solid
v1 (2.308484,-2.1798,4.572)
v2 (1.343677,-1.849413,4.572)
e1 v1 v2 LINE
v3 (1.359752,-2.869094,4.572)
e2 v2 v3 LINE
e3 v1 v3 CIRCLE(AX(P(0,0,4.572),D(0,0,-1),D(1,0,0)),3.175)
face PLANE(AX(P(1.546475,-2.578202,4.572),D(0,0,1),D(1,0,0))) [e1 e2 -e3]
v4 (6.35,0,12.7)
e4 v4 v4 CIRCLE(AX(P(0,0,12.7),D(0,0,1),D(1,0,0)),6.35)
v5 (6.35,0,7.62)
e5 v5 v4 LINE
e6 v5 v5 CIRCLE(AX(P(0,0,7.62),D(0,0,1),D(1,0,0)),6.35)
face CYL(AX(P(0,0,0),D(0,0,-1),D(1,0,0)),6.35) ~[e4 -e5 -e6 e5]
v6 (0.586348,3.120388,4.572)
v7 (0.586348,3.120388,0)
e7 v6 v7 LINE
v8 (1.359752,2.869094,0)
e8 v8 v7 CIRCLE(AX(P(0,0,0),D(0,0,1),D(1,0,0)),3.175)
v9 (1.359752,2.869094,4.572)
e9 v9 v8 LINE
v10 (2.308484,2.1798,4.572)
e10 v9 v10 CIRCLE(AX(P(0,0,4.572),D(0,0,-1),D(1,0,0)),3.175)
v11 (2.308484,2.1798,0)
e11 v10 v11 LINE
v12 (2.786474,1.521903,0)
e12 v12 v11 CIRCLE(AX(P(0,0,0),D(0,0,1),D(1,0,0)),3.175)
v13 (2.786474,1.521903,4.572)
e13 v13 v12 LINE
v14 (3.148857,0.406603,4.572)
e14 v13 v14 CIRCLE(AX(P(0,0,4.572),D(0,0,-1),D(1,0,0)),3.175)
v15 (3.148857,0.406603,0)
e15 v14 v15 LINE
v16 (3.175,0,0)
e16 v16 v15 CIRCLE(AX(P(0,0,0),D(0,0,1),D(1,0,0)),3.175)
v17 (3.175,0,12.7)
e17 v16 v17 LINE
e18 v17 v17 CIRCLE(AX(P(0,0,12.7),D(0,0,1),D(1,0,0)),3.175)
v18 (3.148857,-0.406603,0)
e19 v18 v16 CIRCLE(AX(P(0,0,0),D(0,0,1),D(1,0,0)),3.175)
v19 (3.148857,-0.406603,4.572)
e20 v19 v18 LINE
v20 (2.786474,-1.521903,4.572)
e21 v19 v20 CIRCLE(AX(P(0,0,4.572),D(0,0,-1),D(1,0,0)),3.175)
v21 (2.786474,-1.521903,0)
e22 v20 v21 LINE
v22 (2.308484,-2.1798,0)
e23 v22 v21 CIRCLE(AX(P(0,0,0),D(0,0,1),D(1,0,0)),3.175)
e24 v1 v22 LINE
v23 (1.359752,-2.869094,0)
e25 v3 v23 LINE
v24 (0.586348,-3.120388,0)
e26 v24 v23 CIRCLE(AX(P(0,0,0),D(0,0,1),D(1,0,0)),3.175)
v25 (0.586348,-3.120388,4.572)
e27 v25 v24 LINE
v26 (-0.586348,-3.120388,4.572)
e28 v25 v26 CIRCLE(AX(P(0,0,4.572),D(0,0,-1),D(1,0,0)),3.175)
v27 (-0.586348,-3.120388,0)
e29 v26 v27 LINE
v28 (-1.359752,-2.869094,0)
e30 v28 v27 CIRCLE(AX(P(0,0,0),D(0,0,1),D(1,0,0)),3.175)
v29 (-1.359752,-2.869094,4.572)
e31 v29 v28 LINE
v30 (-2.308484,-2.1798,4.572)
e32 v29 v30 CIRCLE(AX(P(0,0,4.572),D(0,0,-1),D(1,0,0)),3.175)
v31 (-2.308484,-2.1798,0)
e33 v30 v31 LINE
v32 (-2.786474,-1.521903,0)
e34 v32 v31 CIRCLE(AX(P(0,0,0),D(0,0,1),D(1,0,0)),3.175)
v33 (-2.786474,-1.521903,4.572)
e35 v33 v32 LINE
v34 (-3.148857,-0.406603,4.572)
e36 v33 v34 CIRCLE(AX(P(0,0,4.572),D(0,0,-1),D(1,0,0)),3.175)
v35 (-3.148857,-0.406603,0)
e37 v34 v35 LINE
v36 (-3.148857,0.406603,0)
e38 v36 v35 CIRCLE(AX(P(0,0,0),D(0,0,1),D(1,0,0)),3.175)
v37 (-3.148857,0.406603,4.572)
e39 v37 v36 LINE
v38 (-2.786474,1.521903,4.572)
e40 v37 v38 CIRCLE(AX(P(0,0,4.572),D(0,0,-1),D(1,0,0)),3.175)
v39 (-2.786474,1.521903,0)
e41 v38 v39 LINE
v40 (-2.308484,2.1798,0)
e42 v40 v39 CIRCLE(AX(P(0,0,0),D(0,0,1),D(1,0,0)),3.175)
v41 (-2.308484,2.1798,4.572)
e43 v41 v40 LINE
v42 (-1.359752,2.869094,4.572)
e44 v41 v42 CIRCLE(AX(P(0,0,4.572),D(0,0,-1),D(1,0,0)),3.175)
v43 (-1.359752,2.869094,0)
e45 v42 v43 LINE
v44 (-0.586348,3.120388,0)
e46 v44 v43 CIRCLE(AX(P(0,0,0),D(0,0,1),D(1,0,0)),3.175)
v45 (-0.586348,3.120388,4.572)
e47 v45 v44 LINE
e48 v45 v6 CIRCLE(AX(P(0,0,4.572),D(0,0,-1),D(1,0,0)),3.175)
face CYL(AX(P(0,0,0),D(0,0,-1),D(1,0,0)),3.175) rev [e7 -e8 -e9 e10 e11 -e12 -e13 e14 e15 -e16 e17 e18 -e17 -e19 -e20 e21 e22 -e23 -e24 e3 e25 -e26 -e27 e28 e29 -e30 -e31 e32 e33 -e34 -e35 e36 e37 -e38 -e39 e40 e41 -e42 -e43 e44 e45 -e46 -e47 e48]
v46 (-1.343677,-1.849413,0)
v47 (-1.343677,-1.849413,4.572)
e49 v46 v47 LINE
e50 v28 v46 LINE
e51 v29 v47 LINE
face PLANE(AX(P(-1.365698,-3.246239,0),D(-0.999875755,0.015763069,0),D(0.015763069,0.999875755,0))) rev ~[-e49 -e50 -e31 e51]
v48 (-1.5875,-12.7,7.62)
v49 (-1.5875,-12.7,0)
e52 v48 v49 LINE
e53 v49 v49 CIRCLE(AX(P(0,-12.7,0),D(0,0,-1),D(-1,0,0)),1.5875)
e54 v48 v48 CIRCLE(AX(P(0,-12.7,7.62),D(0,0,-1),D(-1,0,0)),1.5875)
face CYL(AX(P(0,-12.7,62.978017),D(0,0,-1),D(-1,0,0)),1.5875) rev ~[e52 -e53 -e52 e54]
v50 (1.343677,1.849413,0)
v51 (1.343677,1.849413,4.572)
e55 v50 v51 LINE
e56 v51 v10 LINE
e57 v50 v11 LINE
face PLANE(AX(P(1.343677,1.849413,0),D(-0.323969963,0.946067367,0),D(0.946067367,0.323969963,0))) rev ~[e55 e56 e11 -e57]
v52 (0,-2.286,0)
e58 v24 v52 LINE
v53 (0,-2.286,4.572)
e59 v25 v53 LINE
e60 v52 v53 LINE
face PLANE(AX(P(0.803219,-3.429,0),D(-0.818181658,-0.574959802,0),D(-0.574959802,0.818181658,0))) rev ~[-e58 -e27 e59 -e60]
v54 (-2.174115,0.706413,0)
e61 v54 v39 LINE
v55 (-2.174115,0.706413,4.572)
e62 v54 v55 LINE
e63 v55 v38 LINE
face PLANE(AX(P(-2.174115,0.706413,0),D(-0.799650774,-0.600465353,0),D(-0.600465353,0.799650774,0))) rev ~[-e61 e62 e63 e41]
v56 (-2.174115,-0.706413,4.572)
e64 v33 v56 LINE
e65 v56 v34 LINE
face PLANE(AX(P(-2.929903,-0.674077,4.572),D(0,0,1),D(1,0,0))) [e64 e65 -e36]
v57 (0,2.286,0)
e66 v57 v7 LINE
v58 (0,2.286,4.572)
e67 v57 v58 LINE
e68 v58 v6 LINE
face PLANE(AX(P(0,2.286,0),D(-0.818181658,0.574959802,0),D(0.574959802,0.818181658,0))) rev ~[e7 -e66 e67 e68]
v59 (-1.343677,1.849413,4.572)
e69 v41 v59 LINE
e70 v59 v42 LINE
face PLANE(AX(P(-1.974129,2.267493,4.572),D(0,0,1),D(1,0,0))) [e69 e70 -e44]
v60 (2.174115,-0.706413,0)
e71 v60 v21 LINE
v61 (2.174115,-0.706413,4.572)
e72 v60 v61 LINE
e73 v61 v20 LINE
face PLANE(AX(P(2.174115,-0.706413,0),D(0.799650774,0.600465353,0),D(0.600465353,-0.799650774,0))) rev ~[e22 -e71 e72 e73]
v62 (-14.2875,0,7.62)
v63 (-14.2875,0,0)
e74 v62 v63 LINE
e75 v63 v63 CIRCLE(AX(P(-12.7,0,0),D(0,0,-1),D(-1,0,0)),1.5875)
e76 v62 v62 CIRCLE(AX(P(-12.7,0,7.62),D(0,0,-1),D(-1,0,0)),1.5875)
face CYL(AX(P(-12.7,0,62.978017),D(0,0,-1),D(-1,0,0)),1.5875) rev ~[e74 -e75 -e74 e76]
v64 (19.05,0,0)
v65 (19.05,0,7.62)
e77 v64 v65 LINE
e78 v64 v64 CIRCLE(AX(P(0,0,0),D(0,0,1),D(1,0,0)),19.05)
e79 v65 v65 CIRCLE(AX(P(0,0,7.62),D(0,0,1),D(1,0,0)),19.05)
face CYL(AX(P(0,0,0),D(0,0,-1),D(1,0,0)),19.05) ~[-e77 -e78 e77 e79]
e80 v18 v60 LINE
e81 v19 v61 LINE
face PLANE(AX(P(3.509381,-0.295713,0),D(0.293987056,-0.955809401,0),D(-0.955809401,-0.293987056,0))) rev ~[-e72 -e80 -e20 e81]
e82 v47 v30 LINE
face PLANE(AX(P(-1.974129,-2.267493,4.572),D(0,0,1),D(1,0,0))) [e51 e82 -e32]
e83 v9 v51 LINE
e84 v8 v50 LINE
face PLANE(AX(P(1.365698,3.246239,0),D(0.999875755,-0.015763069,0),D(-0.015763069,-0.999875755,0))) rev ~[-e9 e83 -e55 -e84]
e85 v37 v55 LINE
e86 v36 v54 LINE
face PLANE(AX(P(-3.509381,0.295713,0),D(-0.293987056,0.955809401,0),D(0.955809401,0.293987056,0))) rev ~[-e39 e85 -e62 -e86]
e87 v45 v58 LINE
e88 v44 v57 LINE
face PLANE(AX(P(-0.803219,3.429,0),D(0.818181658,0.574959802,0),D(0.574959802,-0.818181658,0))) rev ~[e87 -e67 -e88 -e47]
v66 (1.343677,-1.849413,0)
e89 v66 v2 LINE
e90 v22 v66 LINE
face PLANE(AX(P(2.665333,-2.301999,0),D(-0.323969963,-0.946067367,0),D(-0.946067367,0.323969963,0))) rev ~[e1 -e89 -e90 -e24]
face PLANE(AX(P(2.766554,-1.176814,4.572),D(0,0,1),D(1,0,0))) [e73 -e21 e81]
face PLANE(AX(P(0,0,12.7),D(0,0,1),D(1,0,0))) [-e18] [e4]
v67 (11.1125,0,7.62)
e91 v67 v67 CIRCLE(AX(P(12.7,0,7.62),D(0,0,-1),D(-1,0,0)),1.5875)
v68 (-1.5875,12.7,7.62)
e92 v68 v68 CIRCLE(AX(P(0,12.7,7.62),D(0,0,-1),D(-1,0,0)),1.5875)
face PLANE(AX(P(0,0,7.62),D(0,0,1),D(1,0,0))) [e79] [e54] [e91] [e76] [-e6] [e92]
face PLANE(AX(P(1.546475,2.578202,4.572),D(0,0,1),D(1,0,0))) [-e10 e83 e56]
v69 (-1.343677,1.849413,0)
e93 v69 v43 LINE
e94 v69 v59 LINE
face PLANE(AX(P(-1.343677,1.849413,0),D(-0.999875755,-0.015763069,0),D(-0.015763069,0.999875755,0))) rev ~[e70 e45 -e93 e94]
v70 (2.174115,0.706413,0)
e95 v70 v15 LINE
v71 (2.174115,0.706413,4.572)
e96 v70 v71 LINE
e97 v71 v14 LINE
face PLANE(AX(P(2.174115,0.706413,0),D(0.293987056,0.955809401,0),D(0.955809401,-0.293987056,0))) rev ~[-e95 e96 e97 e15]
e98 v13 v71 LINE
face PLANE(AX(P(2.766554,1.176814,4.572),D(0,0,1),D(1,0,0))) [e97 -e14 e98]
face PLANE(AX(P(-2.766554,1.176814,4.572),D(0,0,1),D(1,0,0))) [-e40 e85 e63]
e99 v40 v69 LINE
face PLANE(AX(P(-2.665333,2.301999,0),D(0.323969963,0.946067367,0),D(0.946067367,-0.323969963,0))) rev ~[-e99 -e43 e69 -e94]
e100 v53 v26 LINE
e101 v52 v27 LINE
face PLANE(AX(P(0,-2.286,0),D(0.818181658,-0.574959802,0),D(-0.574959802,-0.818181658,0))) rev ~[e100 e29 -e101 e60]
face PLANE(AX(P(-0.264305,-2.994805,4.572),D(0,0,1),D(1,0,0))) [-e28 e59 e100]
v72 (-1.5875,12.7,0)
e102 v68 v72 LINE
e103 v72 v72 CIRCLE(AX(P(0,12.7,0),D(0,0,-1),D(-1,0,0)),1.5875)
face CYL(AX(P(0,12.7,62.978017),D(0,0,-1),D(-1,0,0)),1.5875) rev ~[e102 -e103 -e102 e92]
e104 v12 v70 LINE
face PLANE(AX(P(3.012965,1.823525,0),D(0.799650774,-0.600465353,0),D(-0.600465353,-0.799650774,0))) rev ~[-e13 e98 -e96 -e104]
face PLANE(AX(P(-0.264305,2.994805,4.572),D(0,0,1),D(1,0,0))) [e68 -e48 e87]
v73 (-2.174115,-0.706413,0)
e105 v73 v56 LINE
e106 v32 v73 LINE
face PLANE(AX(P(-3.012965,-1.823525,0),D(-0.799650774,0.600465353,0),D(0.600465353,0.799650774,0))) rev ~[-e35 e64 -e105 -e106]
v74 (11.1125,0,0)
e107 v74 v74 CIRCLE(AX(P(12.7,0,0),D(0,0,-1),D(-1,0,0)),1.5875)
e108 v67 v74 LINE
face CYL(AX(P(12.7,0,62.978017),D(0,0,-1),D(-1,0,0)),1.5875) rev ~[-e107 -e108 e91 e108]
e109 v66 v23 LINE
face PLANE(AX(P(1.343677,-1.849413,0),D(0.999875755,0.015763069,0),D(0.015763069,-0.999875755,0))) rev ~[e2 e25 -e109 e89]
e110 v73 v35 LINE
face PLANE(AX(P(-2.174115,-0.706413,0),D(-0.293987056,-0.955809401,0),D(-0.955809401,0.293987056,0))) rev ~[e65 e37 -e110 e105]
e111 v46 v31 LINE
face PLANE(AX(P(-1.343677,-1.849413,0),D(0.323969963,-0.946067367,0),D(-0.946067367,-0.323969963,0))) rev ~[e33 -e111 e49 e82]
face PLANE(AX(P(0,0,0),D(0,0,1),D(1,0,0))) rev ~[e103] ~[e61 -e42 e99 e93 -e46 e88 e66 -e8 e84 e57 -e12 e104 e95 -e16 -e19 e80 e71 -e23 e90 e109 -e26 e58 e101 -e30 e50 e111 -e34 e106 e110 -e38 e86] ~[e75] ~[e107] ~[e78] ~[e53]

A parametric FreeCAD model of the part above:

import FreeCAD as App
import Part
import Sketcher
from FreeCAD import Vector
Q = App.Units.Quantity


def add_polygon(sketch, points):
    """Adds a closed chain of lines whose ends are joined by coincident constraints."""
    first, n = sketch.GeometryCount, len(points)
    for a, b in zip(points, points[1:] + points[:1]):
        sketch.addGeometry(Part.LineSegment(App.Vector(*a, 0), App.Vector(*b, 0)), False)
    for i in range(n):
        sketch.addConstraint(Sketcher.Constraint("Coincident", first + i, 2, first + (i + 1) % n, 1))

doc = App.newDocument("Part")
params = doc.addObject("Spreadsheet::Sheet", "Params")
for row, (alias, value) in enumerate([
    ("sketch1_diameter", "0.5 in"),
    ("sketch1_diameter2", "0.25 in"),
    ("pad1_length", "0.5 in"),
    ("sketch2_diameter", "1.5 in"),
    ("sketch2_diameter2", "0.5 in"),
    ("pad2_length", "0.3 in"),
    ("sketch3_length", "0.055 in"),
    ("pad3_length", "0.18 in"),
    ("sketch4_diameter", "0.125 in"),
    ("hole_diameter", "0.125 in"),
], start=1):
    params.set(f"A{row}", alias)
    params.set(f"B{row}", "=" + value)
    params.setAlias(f"B{row}", alias)

body = doc.addObject("PartDesign::Body", "Body")

# Sketch on XY plane
sketch1 = doc.addObject("Sketcher::SketchObject", "Sketch")
body.addObject(sketch1)
sketch1.AttachmentSupport = (doc.XY_Plane, [""])
sketch1.MapMode = "FlatFace"
sketch1.addGeometry(Part.Circle(Vector(0, 0, 0), Vector(0, 0, 1), 6.3), False)
sketch1.addGeometry(Part.Circle(Vector(0, 0, 0), Vector(0, 0, 1), 3.2), False)
sketch1.addConstraint(Sketcher.Constraint("Coincident", 0, 3, -1, 1))
sketch1.addConstraint(Sketcher.Constraint("Coincident", 1, 3, -1, 1))
sketch1.addConstraint(Sketcher.Constraint("Diameter", 0, Q("0.5 in")))
sketch1.addConstraint(Sketcher.Constraint("Diameter", 1, Q("0.25 in")))
sketch1.setExpression("Constraints[2]", "Params.sketch1_diameter")
sketch1.setExpression("Constraints[3]", "Params.sketch1_diameter2")
pad1 = doc.addObject("PartDesign::Pad", "Pad")
body.addObject(pad1)
pad1.Profile = sketch1
pad1.setExpression("Length", "Params.pad1_length")

# Sketch on XY plane
sketch2 = doc.addObject("Sketcher::SketchObject", "Sketch001")
body.addObject(sketch2)
sketch2.AttachmentSupport = (doc.XY_Plane, [""])
sketch2.MapMode = "FlatFace"
sketch2.addGeometry(Part.Circle(Vector(0, 0, 0), Vector(0, 0, 1), 19), False)
sketch2.addGeometry(Part.Circle(Vector(0, 0, 0), Vector(0, 0, 1), 6), False)
sketch2.addConstraint(Sketcher.Constraint("Coincident", 0, 3, -1, 1))
sketch2.addConstraint(Sketcher.Constraint("Coincident", 1, 3, -1, 1))
sketch2.addConstraint(Sketcher.Constraint("Diameter", 0, Q("1.5 in")))
sketch2.addConstraint(Sketcher.Constraint("Diameter", 1, Q("0.5 in")))
sketch2.setExpression("Constraints[2]", "Params.sketch2_diameter")
sketch2.setExpression("Constraints[3]", "Params.sketch2_diameter2")
pad2 = doc.addObject("PartDesign::Pad", "Pad001")
body.addObject(pad2)
pad2.Profile = sketch2
pad2.setExpression("Length", "Params.pad2_length")

# Sketch on XY plane
sketch3 = doc.addObject("Sketcher::SketchObject", "Sketch002")
body.addObject(sketch3)
sketch3.AttachmentSupport = (doc.XY_Plane, [""])
sketch3.MapMode = "FlatFace"
add_polygon(sketch3, [(-0.8, 3.4), (0, 2.3), (0.8, 3.4)])  # lines 0-2
add_polygon(sketch3, [(1.4, 3.2), (1.3, 1.8), (2.7, 2.3), (2, 2.8)])  # lines 3-6
add_polygon(sketch3, [(3, 1.8), (2.2, 0.7), (3.5, 0.3)])  # lines 7-9
add_polygon(sketch3, [(0, -2.3), (-0.8, -3.4), (0.8, -3.4)])  # lines 10-12
add_polygon(sketch3, [(1.4, -3.2), (2, -2.8), (2.7, -2.3), (1.3, -1.8)])  # lines 13-16
add_polygon(sketch3, [(3, -1.8), (3.5, -0.3), (2.2, -0.7)])  # lines 17-19
add_polygon(sketch3, [(-2.7, 2.3), (-1.3, 1.8), (-1.4, 3.2), (-2, 2.8)])  # lines 20-23
add_polygon(sketch3, [(-3, 1.8), (-3.5, 0.3), (-2.2, 0.7)])  # lines 24-26
add_polygon(sketch3, [(-2.2, -0.7), (-3.5, -0.3), (-3, -1.8)])  # lines 27-29
add_polygon(sketch3, [(-1.3, -1.8), (-2.7, -2.3), (-2, -2.8), (-1.4, -3.2)])  # lines 30-33
sketch3.addConstraint(Sketcher.Constraint("Horizontal", 2))
sketch3.addConstraint(Sketcher.Constraint("Horizontal", 11))
sketch3.addConstraint(Sketcher.Constraint("Symmetric", 1, 2, 10, 2, -1, 1))
sketch3.addConstraint(Sketcher.Constraint("Symmetric", 0, 2, 12, 2, -1, 1))
sketch3.addConstraint(Sketcher.Constraint("Symmetric", 15, 2, 20, 2, -1, 1))
sketch3.addConstraint(Sketcher.Constraint("Symmetric", 16, 2, 21, 2, -1, 1))
sketch3.addConstraint(Sketcher.Constraint("Symmetric", 13, 2, 22, 2, -1, 1))
sketch3.addConstraint(Sketcher.Constraint("Symmetric", 14, 2, 23, 2, -1, 1))
sketch3.addConstraint(Sketcher.Constraint("Symmetric", 17, 2, 24, 2, -1, 1))
sketch3.addConstraint(Sketcher.Constraint("Symmetric", 18, 2, 25, 2, -1, 1))
sketch3.addConstraint(Sketcher.Constraint("Symmetric", 19, 2, 26, 2, -1, 1))
sketch3.addConstraint(Sketcher.Constraint("Symmetric", 8, 2, 27, 2, -1, 1))
sketch3.addConstraint(Sketcher.Constraint("Symmetric", 9, 2, 28, 2, -1, 1))
sketch3.addConstraint(Sketcher.Constraint("Symmetric", 7, 2, 29, 2, -1, 1))
sketch3.addConstraint(Sketcher.Constraint("Symmetric", 4, 2, 30, 2, -1, 1))
sketch3.addConstraint(Sketcher.Constraint("Symmetric", 5, 2, 31, 2, -1, 1))
sketch3.addConstraint(Sketcher.Constraint("Symmetric", 6, 2, 32, 2, -1, 1))
sketch3.addConstraint(Sketcher.Constraint("Symmetric", 3, 2, 33, 2, -1, 1))
sketch3.addConstraint(Sketcher.Constraint("Symmetric", 3, 2, 20, 2, -2))
sketch3.addConstraint(Sketcher.Constraint("Symmetric", 6, 2, 21, 2, -2))
sketch3.addConstraint(Sketcher.Constraint("Symmetric", 5, 2, 22, 2, -2))
sketch3.addConstraint(Sketcher.Constraint("Symmetric", 4, 2, 23, 2, -2))
sketch3.addConstraint(Sketcher.Constraint("Symmetric", 8, 2, 24, 2, -2))
sketch3.addConstraint(Sketcher.Constraint("Symmetric", 7, 2, 25, 2, -2))
sketch3.addConstraint(Sketcher.Constraint("Symmetric", 9, 2, 26, 2, -2))
sketch3.addConstraint(Sketcher.Constraint("PointOnObject", 0, 2, -2))
sketch3.addConstraint(Sketcher.Constraint("Parallel", 5, 6))
sketch3.addConstraint(Sketcher.Constraint("Parallel", 0, 12))
sketch3.addConstraint(Sketcher.Constraint("Vertical", 2, 2, 10, 2))
sketch3.addConstraint(Sketcher.Constraint("Equal", 1, 3))
sketch3.addConstraint(Sketcher.Constraint("Equal", 3, 4))
sketch3.addConstraint(Sketcher.Constraint("Equal", 5, 6))
sketch3.addConstraint(Sketcher.Constraint("Equal", 4, 7))
sketch3.addConstraint(Sketcher.Constraint("Equal", 7, 8))
sketch3.addConstraint(Sketcher.Constraint("Angle", 5, Q("143.999982 deg")))
sketch3.addConstraint(Sketcher.Constraint("Angle", 9, Q("107.999993 deg")))
sketch3.addConstraint(Sketcher.Constraint("DistanceY", -1, 1, 0, 2, Q("0.09 in")))
sketch3.addConstraint(Sketcher.Constraint("Distance", 0, Q("0.055 in")))
sketch3.addConstraint(Sketcher.Constraint("DistanceY", -1, 1, 1, 2, Q("0.135 in")))
sketch3.addConstraint(Sketcher.Constraint("DistanceY", 7, 2, 3, 2, Q("0.045 in")))
sketch3.addConstraint(Sketcher.Constraint("DistanceY", -1, 1, 4, 2, 2.301999))
sketch3.addConstraint(Sketcher.Constraint("DistanceX", -1, 1, 6, 2, 1.365698))
sketch3.addConstraint(Sketcher.Constraint("DistanceX", 5, 2, 7, 2, 0.158599))
sketch3.addConstraint(Sketcher.Constraint("DistanceY", 8, 2, 7, 2, 0.4107))
sketch3.addConstraint(Sketcher.Constraint("DistanceX", 10, 2, 8, 2, 4.3126))
sketch3.setExpression("Constraints[71]", "Params.sketch3_length")
pad3 = doc.addObject("PartDesign::Pad", "Pad002")
body.addObject(pad3)
pad3.Profile = sketch3
pad3.setExpression("Length", "Params.pad3_length")

# Sketch on XY plane
sketch4 = doc.addObject("Sketcher::SketchObject", "Sketch003")
body.addObject(sketch4)
sketch4.AttachmentSupport = (doc.XY_Plane, [""])
sketch4.MapMode = "FlatFace"
sketch4.AttachmentOffset = App.Placement(Vector(0, 0, 0.3 * 25.4), App.Rotation())
sketch4.addGeometry(Part.Circle(Vector(0, -12.7, 0), Vector(0, 0, 1), 1.6), False)
sketch4.addGeometry(Part.Circle(Vector(-12.7, 0, 0), Vector(0, 0, 1), 1.6), False)
sketch4.addGeometry(Part.Circle(Vector(0, 12.7, 0), Vector(0, 0, 1), 1.6), False)
sketch4.addGeometry(Part.Circle(Vector(12.7, 0, 0), Vector(0, 0, 1), 1.6), False)
sketch4.addConstraint(Sketcher.Constraint("Equal", 0, 1))
sketch4.addConstraint(Sketcher.Constraint("Equal", 1, 2))
sketch4.addConstraint(Sketcher.Constraint("Equal", 2, 3))
sketch4.addConstraint(Sketcher.Constraint("Symmetric", 0, 3, 2, 3, -1, 1))
sketch4.addConstraint(Sketcher.Constraint("Symmetric", 1, 3, 3, 3, -1, 1))
sketch4.addConstraint(Sketcher.Constraint("PointOnObject", 0, 3, -2))
sketch4.addConstraint(Sketcher.Constraint("PointOnObject", 1, 3, -1))
sketch4.addConstraint(Sketcher.Constraint("Diameter", 0, Q("0.125 in")))
sketch4.addConstraint(Sketcher.Constraint("DistanceY", 0, 3, 2, 3, Q("1 in")))
sketch4.addConstraint(Sketcher.Constraint("DistanceX", 1, 3, 3, 3, Q("1 in")))
sketch4.setExpression("Constraints[7]", "Params.sketch4_diameter")
doc.recompute()
hole = doc.addObject("PartDesign::Hole", "Hole")
body.addObject(hole)
hole.Profile = sketch4
hole.ThreadType = "None"
hole.setExpression("Diameter", "Params.hole_diameter")
hole.DepthType = "ThroughAll"

doc.recompute()
